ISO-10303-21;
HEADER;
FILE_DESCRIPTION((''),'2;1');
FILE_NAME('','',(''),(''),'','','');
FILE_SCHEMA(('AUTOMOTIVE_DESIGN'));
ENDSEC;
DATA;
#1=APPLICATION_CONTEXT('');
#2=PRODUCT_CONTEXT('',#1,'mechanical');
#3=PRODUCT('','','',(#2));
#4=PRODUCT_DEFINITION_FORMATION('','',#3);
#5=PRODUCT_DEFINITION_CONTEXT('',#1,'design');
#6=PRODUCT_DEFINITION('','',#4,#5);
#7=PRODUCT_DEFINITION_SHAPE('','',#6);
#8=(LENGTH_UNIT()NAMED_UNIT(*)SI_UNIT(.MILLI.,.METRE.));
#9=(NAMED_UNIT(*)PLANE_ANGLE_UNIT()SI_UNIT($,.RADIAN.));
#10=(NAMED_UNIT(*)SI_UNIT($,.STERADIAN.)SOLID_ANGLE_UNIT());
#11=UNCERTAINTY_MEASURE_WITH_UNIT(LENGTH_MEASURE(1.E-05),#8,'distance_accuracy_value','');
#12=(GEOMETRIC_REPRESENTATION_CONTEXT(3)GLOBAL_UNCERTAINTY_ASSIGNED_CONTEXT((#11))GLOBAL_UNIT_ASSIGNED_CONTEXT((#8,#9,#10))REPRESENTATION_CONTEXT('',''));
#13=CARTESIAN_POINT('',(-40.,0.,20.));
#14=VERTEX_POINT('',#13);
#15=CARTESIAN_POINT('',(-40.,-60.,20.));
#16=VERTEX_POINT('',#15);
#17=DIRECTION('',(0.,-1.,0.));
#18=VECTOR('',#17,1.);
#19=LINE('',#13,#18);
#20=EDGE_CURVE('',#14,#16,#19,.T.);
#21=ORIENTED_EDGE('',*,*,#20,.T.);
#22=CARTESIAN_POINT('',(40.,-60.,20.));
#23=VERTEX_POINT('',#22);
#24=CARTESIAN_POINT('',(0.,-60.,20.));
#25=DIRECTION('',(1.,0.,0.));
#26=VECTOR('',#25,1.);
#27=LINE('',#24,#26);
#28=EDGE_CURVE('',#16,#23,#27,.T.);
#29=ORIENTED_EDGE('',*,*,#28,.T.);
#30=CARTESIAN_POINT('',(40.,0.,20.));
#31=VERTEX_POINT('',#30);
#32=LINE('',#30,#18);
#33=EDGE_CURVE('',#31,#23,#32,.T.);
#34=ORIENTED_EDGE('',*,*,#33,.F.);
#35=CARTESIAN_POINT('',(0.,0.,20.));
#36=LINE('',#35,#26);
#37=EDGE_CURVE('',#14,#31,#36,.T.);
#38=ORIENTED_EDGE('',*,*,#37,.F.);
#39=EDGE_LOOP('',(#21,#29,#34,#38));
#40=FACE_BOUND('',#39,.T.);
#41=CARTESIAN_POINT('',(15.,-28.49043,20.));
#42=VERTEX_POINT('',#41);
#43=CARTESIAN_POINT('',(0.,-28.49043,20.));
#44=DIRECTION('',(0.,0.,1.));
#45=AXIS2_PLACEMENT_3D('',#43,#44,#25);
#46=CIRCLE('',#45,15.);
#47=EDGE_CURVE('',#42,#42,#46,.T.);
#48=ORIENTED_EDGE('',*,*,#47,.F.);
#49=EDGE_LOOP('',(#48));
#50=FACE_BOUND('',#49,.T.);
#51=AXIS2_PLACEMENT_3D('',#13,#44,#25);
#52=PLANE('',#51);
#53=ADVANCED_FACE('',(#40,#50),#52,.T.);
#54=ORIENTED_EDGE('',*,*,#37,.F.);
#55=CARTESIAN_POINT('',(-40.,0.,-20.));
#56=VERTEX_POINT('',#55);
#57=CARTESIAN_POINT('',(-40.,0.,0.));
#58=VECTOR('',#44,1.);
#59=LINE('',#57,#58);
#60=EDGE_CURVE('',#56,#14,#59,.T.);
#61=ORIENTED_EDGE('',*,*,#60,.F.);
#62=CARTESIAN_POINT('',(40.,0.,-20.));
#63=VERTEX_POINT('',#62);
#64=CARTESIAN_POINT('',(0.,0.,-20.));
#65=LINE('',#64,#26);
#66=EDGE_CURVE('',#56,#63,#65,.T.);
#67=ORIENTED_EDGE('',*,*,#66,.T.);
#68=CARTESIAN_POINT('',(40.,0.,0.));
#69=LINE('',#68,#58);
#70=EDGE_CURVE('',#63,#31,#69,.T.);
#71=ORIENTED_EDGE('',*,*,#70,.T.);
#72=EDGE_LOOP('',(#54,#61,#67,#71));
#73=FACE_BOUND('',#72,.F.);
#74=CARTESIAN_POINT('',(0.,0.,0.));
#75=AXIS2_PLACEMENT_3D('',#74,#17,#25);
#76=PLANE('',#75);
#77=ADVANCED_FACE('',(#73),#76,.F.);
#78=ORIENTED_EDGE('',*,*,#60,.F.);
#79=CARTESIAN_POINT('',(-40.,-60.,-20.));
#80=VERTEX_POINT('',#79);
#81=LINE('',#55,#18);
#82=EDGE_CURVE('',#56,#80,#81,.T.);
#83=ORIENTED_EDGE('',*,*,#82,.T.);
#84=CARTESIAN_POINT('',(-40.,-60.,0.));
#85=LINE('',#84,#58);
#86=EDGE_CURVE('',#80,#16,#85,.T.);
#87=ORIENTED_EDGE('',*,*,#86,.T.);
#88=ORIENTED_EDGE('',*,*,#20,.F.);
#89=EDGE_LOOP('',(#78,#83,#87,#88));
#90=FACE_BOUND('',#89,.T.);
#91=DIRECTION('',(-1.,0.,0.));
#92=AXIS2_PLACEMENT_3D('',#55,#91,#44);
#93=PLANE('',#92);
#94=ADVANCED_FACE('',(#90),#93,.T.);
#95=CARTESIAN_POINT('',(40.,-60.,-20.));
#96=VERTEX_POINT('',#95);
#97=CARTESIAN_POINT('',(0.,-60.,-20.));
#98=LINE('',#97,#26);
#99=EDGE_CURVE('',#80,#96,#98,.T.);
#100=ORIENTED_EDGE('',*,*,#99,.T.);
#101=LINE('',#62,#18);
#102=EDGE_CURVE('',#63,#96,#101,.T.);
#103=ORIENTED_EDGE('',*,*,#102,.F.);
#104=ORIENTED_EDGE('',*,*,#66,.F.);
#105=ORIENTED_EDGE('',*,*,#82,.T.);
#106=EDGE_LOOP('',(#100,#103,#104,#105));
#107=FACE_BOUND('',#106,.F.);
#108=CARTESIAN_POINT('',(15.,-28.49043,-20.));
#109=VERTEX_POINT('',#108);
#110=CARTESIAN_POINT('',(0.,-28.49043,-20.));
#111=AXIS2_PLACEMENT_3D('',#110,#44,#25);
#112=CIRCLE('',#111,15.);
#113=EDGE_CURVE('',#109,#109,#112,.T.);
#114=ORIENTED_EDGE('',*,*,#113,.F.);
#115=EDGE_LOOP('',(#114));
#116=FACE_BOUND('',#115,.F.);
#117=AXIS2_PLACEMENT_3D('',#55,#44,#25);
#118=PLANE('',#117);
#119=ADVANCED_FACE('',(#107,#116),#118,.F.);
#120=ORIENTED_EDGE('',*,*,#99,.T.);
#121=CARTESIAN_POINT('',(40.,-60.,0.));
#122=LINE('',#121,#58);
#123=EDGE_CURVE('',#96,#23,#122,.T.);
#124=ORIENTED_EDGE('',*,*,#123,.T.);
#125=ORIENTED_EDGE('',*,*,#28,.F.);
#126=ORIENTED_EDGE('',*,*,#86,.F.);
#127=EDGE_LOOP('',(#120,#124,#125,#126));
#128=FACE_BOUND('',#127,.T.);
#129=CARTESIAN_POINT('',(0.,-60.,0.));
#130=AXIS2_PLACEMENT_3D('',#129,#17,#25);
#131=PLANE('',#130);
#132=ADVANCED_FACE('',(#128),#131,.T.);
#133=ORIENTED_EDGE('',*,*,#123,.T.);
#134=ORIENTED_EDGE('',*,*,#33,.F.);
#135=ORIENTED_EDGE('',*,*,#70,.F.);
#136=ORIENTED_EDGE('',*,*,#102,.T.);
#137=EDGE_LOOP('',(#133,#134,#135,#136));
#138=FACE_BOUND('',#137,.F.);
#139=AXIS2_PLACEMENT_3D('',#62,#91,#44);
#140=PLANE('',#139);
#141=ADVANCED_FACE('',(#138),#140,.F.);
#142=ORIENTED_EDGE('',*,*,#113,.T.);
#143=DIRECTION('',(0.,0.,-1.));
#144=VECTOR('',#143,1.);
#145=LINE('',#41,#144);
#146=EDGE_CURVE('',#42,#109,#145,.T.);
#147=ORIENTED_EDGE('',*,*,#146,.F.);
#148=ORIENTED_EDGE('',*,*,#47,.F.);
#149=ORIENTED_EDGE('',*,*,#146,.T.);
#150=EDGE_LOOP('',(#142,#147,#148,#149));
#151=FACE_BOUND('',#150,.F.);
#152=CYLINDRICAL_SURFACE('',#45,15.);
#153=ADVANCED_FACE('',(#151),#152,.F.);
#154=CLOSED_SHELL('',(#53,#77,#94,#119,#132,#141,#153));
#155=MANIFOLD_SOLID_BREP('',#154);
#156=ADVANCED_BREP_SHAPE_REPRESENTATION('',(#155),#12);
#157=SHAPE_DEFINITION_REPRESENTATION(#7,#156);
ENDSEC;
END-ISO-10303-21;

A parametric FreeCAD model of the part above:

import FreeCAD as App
import Part
import Sketcher

doc = App.newDocument("Part")
body = doc.addObject("PartDesign::Body", "Body")

sketch1 = body.newObject("Sketcher::SketchObject", "Sketch")
sketch1.AttachmentSupport = (doc.getObject("XZ_Plane"), [""])
sketch1.MapMode = "FlatFace"
sketch1.addGeometry([
    Part.LineSegment(App.Vector(-40, 20, 0), App.Vector(-40, -20, 0)),
    Part.LineSegment(App.Vector(-40, -20, 0), App.Vector(40, -20, 0)),
    Part.LineSegment(App.Vector(40, -20, 0), App.Vector(40, 20, 0)),
    Part.LineSegment(App.Vector(40, 20, 0), App.Vector(-40, 20, 0)),
], False)
sketch1.addConstraint([
    Sketcher.Constraint("Coincident", 0, 2, 1, 1),
    Sketcher.Constraint("Coincident", 1, 2, 2, 1),
    Sketcher.Constraint("Coincident", 2, 2, 3, 1),
    Sketcher.Constraint("Coincident", 3, 2, 0, 1),
    Sketcher.Constraint("Vertical", 0),
    Sketcher.Constraint("Horizontal", 1),
    Sketcher.Constraint("Vertical", 2),
    Sketcher.Constraint("Horizontal", 3),
    Sketcher.Constraint("Symmetric", 0, 2, 2, 2, -1, 1),
    Sketcher.Constraint("DistanceX", 1, 1, 1, 2, 80.0),
    Sketcher.Constraint("DistanceY", 0, 2, 0, 1, 40.0),
])
pad1 = body.newObject("PartDesign::Pad", "Pad")
pad1.Profile = sketch1
pad1.Length = 60

sketch2 = body.newObject("Sketcher::SketchObject", "Sketch001")
sketch2.AttachmentSupport = (doc.getObject("XY_Plane"), [""])
sketch2.MapMode = "FlatFace"
sketch2.AttachmentOffset = App.Placement(App.Vector(0, 0, 20), App.Rotation())
sketch2.addGeometry(Part.Circle(App.Vector(0, -28.49043, 0), App.Vector(0, 0, 1), 15), False)
sketch2.addConstraint([
    Sketcher.Constraint("PointOnObject", 0, 3, -2),
    Sketcher.Constraint("Diameter", 0, 30.0),
    Sketcher.Constraint("DistanceY", 0, 3, -1, 1, 28.49043),
])
pocket1 = body.newObject("PartDesign::Pocket", "Pocket")
pocket1.Profile = sketch2
pocket1.Type = "ThroughAll"

doc.recompute()
